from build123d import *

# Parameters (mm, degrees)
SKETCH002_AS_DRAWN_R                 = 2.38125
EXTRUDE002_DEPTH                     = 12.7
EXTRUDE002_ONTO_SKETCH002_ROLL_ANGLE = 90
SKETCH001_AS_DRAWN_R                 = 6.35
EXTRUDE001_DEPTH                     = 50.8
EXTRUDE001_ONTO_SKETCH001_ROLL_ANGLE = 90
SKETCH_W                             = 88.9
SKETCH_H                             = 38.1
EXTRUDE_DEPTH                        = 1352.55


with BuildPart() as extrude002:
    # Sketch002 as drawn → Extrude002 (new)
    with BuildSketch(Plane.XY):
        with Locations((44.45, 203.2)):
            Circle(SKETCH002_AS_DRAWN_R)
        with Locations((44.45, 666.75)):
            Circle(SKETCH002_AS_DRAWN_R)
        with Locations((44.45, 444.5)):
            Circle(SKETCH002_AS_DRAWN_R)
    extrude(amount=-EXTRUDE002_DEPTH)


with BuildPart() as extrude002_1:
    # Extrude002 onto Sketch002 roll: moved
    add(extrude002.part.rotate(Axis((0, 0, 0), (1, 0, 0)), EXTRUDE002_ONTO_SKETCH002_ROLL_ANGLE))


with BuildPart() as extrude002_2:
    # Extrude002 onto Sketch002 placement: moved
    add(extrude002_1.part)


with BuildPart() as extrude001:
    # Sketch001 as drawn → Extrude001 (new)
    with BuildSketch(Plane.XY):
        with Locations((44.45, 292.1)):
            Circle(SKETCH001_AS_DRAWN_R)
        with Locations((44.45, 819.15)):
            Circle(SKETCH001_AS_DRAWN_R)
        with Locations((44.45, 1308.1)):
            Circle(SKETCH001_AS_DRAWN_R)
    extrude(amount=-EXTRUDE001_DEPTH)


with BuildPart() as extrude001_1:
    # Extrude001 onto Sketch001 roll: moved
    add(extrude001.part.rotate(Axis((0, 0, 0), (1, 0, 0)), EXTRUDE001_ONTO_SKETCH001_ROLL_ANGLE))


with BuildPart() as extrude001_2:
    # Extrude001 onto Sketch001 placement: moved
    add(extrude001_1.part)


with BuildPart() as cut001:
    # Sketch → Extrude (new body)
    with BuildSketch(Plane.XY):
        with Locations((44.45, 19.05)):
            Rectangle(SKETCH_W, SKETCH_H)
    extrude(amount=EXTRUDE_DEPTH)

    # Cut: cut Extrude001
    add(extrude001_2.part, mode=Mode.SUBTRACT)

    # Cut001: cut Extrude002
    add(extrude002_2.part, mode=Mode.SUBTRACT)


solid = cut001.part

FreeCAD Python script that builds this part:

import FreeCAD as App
import Part
import Sketcher
from FreeCAD import Vector
Q = App.Units.Quantity

doc = App.newDocument("Part")
body = doc.addObject("PartDesign::Body", "Body")
body.AllowCompound = True

sketch1 = body.newObject("Sketcher::SketchObject", "Sketch")
sketch1.AttachmentSupport = (doc.getObject("XY_Plane"), [""])
sketch1.MapMode = "FlatFace"
sketch1.addGeometry(Part.Circle(Vector(44.5, 203.2, 0), Vector(0, 0, 1), 2.4), False)
sketch1.addGeometry(Part.Circle(Vector(44.5, 666.8, 0), Vector(0, 0, 1), 2.4), False)
sketch1.addGeometry(Part.Circle(Vector(44.5, 444.5, 0), Vector(0, 0, 1), 2.4), False)
sketch1.addConstraint(Sketcher.Constraint("Equal", 0, 1))
sketch1.addConstraint(Sketcher.Constraint("Equal", 1, 2))
sketch1.addConstraint(Sketcher.Constraint("Vertical", 0, 3, 1, 3))
sketch1.addConstraint(Sketcher.Constraint("Vertical", 1, 3, 2, 3))
sketch1.addConstraint(Sketcher.Constraint("Diameter", 0, Q("0.1875 in")))
sketch1.addConstraint(Sketcher.Constraint("DistanceY", -1, 1, 0, 3, Q("8 in")))
sketch1.addConstraint(Sketcher.Constraint("DistanceY", -1, 1, 2, 3, Q("17.5 in")))
sketch1.addConstraint(Sketcher.Constraint("DistanceX", -1, 1, 0, 3, Q("1.75 in")))
sketch1.addConstraint(Sketcher.Constraint("DistanceY", -1, 1, 1, 3, Q("26.25 in")))
pad1 = body.newObject("PartDesign::Pad", "Pad")
pad1.Profile = sketch1
pad1.Length = Q("0.5 in")
pad1.Reversed = True
body2 = doc.addObject("PartDesign::Body", "Body001")
body2.AllowCompound = True
doc.recompute()

body.Placement = App.Placement(Vector(0, 0, 0), App.Rotation(Vector(1, 0, 0), 90))
boolean = body2.newObject("PartDesign::Boolean", "Boolean")
boolean.Type = "Fuse"
boolean.addObjects([body])
body3 = doc.addObject("PartDesign::Body", "Body002")
body3.AllowCompound = True

sketch2 = body3.newObject("Sketcher::SketchObject", "Sketch001")
sketch2.AttachmentSupport = (doc.getObject("XY_Plane002"), [""])
sketch2.MapMode = "FlatFace"
sketch2.addGeometry(Part.Circle(Vector(44, 292, 0), Vector(0, 0, 1), 6), False)
sketch2.addGeometry(Part.Circle(Vector(44, 819, 0), Vector(0, 0, 1), 6), False)
sketch2.addGeometry(Part.Circle(Vector(44, 1308, 0), Vector(0, 0, 1), 6), False)
sketch2.addConstraint(Sketcher.Constraint("Equal", 0, 1))
sketch2.addConstraint(Sketcher.Constraint("Equal", 1, 2))
sketch2.addConstraint(Sketcher.Constraint("Vertical", 0, 3, 1, 3))
sketch2.addConstraint(Sketcher.Constraint("Vertical", 1, 3, 2, 3))
sketch2.addConstraint(Sketcher.Constraint("Diameter", 0, Q("0.5 in")))
sketch2.addConstraint(Sketcher.Constraint("DistanceY", 0, 3, 2, 3, Q("40 in")))
sketch2.addConstraint(Sketcher.Constraint("DistanceY", -1, 1, 0, 3, Q("11.5 in")))
sketch2.addConstraint(Sketcher.Constraint("DistanceX", -1, 1, 0, 3, Q("1.75 in")))
sketch2.addConstraint(Sketcher.Constraint("DistanceY", -1, 1, 1, 3, Q("32.25 in")))
pad2 = body3.newObject("PartDesign::Pad", "Pad001")
pad2.Profile = sketch2
pad2.Length = Q("2 in")
pad2.Reversed = True
body4 = doc.addObject("PartDesign::Body", "Body003")
body4.AllowCompound = True
doc.recompute()

body3.Placement = App.Placement(Vector(0, 0, 0), App.Rotation(Vector(1, 0, 0), 90))
boolean2 = body4.newObject("PartDesign::Boolean", "Boolean001")
boolean2.Type = "Fuse"
boolean2.addObjects([body3])
body5 = doc.addObject("PartDesign::Body", "Body004")

sketch3 = body5.newObject("Sketcher::SketchObject", "Sketch002")
sketch3.AttachmentSupport = (doc.getObject("XY_Plane004"), [""])
sketch3.MapMode = "FlatFace"
sketch3.addGeometry(Part.LineSegment(Vector(0, 38, 0), Vector(0, 0, 0)), False)
sketch3.addGeometry(Part.LineSegment(Vector(0, 0, 0), Vector(89, 0, 0)), False)
sketch3.addGeometry(Part.LineSegment(Vector(89, 0, 0), Vector(89, 38, 0)), False)
sketch3.addGeometry(Part.LineSegment(Vector(89, 38, 0), Vector(0, 38, 0)), False)
sketch3.addConstraint(Sketcher.Constraint("Coincident", 0, 2, 1, 1))
sketch3.addConstraint(Sketcher.Constraint("Coincident", 1, 2, 2, 1))
sketch3.addConstraint(Sketcher.Constraint("Coincident", 2, 2, 3, 1))
sketch3.addConstraint(Sketcher.Constraint("Coincident", 3, 2, 0, 1))
sketch3.addConstraint(Sketcher.Constraint("Vertical", 0))
sketch3.addConstraint(Sketcher.Constraint("Horizontal", 1))
sketch3.addConstraint(Sketcher.Constraint("Vertical", 2))
sketch3.addConstraint(Sketcher.Constraint("Horizontal", 3))
sketch3.addConstraint(Sketcher.Constraint("Coincident", 0, 2, -1, 1))
sketch3.addConstraint(Sketcher.Constraint("DistanceX", 1, 1, 1, 2, Q("3.5 in")))
sketch3.addConstraint(Sketcher.Constraint("DistanceY", 0, 2, 0, 1, Q("1.5 in")))
pad3 = body5.newObject("PartDesign::Pad", "Pad002")
pad3.Profile = sketch3
pad3.Length = Q("53.25 in")
doc.recompute()

boolean3 = body5.newObject("PartDesign::Boolean", "Boolean002")
boolean3.Type = "Cut"
boolean3.addObjects([body4])
doc.recompute()

boolean4 = body5.newObject("PartDesign::Boolean", "Boolean003")
boolean4.Type = "Cut"
boolean4.addObjects([body2])

doc.recompute()
